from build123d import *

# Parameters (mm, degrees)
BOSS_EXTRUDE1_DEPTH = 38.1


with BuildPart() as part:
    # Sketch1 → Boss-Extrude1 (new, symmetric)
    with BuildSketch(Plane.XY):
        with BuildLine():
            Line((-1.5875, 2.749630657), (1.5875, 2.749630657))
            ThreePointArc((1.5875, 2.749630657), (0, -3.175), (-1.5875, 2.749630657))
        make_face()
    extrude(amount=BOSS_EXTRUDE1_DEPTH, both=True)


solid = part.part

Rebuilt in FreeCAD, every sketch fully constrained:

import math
import FreeCAD as App
import Part
import Sketcher
from FreeCAD import Vector
Q = App.Units.Quantity

doc = App.newDocument("Part")
body = doc.addObject("PartDesign::Body", "Body")

sketch1 = doc.addObject("Sketcher::SketchObject", "Sketch")
body.addObject(sketch1)
sketch1.AttachmentSupport = (doc.XY_Plane, [""])
sketch1.MapMode = "FlatFace"
sketch1.addGeometry([
    Part.LineSegment(Vector(1.6, 2.7, 0), Vector(-1.6, 2.7, 0)),
    Part.ArcOfCircle(Part.Circle(Vector(0, 0, 0), Vector(0, 0, 1), 3.2), math.radians(120), math.radians(420)),
], False)
sketch1.addConstraint([
    Sketcher.Constraint("Coincident", 0, 1, 1, 2),
    Sketcher.Constraint("Coincident", 1, 1, 0, 2),
    Sketcher.Constraint("Horizontal", 0),
    Sketcher.Constraint("Coincident", 1, 3, -1, 1),
    Sketcher.Constraint("Radius", 1, Q("0.125 in")),
    Sketcher.Constraint("DistanceX", 0, 2, 0, 1, Q("0.125 in")),
])
pad1 = doc.addObject("PartDesign::Pad", "Pad")
body.addObject(pad1)
pad1.Profile = sketch1
pad1.Length = Q("3 in")
pad1.Midplane = True

doc.recompute()
